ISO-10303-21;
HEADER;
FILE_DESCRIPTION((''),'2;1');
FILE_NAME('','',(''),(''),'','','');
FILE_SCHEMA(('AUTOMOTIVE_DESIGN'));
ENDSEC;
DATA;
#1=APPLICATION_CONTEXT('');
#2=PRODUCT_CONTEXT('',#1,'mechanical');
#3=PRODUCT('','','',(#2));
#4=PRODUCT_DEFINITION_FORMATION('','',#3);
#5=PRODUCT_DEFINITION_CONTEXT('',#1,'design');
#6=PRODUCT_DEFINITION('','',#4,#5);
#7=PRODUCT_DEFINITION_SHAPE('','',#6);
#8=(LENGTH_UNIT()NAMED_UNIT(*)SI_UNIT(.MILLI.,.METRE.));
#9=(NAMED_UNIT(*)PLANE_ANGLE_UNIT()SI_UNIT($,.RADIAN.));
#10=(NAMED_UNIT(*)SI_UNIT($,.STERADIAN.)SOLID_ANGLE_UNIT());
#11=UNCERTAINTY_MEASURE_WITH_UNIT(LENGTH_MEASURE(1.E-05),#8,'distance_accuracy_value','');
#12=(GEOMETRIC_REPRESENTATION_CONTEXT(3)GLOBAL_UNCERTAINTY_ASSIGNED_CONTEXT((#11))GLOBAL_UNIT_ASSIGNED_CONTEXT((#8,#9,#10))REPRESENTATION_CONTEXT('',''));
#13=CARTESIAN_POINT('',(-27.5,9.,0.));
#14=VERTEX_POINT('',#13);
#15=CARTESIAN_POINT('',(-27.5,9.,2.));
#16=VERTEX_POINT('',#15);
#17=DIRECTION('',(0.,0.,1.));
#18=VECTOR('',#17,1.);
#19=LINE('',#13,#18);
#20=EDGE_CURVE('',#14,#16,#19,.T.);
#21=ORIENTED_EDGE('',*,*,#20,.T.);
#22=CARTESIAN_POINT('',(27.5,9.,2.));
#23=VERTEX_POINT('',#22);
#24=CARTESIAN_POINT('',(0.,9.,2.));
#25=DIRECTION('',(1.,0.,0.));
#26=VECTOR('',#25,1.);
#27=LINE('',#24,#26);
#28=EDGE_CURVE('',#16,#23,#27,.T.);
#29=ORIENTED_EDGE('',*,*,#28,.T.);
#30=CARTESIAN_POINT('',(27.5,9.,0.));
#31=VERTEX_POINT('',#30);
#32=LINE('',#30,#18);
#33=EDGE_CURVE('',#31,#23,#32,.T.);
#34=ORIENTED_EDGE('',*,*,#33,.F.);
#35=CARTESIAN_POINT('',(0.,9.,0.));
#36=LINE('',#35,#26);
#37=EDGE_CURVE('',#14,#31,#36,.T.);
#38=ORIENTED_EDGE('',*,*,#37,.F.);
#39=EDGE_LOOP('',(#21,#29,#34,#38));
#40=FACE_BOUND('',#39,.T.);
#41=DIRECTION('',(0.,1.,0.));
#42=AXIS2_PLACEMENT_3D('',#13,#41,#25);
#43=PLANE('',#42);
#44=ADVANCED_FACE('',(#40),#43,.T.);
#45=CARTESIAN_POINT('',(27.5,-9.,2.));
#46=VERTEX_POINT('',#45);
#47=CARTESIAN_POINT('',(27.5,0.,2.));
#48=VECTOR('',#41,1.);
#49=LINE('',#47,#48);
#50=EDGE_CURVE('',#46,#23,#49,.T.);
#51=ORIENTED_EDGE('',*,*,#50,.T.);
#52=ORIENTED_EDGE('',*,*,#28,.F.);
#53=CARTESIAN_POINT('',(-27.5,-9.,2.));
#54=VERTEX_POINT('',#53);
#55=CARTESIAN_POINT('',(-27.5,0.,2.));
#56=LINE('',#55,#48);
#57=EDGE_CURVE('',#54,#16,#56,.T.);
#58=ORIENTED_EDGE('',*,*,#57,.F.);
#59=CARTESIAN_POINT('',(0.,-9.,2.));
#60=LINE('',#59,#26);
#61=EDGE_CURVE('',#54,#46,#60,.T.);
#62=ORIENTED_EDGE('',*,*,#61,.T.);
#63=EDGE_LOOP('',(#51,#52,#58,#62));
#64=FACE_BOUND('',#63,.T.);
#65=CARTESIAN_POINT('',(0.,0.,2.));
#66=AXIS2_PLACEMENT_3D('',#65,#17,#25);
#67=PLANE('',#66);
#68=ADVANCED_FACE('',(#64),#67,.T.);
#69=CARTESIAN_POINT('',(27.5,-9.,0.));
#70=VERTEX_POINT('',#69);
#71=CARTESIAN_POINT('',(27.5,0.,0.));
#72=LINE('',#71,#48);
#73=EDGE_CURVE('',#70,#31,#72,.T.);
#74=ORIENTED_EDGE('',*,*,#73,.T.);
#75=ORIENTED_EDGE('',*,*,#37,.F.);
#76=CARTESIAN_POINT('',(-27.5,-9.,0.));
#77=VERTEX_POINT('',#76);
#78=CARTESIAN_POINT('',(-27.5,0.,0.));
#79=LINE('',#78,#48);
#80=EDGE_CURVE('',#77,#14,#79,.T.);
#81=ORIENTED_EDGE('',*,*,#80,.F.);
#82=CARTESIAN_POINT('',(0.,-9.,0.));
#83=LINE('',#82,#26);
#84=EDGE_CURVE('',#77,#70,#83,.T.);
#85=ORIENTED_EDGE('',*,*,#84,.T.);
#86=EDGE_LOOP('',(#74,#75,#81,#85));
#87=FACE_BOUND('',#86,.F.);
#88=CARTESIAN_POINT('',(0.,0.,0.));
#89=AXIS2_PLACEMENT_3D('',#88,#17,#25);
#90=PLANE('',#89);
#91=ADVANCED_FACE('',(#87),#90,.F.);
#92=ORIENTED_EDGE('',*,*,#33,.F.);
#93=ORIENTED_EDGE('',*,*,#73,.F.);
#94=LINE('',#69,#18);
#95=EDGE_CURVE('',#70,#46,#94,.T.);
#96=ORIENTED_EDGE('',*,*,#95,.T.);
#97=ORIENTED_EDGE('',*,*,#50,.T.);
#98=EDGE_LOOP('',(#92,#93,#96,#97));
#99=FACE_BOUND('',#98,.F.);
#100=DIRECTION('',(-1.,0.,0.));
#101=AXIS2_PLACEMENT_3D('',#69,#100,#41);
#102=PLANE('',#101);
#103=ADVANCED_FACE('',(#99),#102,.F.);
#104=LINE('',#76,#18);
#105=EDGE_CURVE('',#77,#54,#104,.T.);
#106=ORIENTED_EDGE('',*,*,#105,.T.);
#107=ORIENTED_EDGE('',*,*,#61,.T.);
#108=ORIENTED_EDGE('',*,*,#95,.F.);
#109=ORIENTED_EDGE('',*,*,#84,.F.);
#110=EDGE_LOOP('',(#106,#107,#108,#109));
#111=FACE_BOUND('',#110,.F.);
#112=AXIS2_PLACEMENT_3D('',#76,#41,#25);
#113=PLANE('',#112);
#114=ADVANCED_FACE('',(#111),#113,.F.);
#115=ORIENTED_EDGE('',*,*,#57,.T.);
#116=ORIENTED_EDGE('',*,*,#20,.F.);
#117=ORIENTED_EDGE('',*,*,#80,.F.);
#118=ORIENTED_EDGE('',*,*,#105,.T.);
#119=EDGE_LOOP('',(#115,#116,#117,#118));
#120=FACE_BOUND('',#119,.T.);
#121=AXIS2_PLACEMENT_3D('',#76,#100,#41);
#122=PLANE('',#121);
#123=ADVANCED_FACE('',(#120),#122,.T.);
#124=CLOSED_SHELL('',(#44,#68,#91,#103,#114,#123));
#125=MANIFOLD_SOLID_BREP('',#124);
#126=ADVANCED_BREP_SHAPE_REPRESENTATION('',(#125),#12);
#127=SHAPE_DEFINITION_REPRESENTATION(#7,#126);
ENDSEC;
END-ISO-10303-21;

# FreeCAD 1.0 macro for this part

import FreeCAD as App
import Part
import Sketcher
from FreeCAD import Vector
Q = App.Units.Quantity


def add_polygon(sketch, points):
    """Adds a closed chain of lines whose ends are joined by coincident constraints."""
    first, n = sketch.GeometryCount, len(points)
    for a, b in zip(points, points[1:] + points[:1]):
        sketch.addGeometry(Part.LineSegment(App.Vector(*a, 0), App.Vector(*b, 0)), False)
    for i in range(n):
        sketch.addConstraint(Sketcher.Constraint("Coincident", first + i, 2, first + (i + 1) % n, 1))

doc = App.newDocument("Part")
body = doc.addObject("PartDesign::Body", "Body")

# Sketch on XY plane
sketch1 = body.newObject("Sketcher::SketchObject", "Sketch")
sketch1.AttachmentSupport = (doc.getObject("XY_Plane"), [""])
sketch1.MapMode = "FlatFace"
add_polygon(sketch1, [(-27.5, 9), (-27.5, -9), (27.5, -9), (27.5, 9)])  # lines 0-3
sketch1.addConstraint([
    Sketcher.Constraint("Vertical", 0),
    Sketcher.Constraint("Horizontal", 1),
    Sketcher.Constraint("Vertical", 2),
    Sketcher.Constraint("Horizontal", 3),
    Sketcher.Constraint("Symmetric", 0, 2, 2, 2, -1, 1),
    Sketcher.Constraint("DistanceX", 1, 1, 1, 2, Q("55 mm")),
    Sketcher.Constraint("DistanceY", 0, 2, 0, 1, Q("18 mm")),
])
pad1 = body.newObject("PartDesign::Pad", "Pad")
pad1.Profile = sketch1
pad1.Length = 2

# Sketch on XY plane
sketch2 = body.newObject("Sketcher::SketchObject", "Sketch001")
sketch2.AttachmentSupport = (doc.getObject("XY_Plane"), [""])
sketch2.MapMode = "FlatFace"
add_polygon(sketch2, [(-27.5, 9), (-27.5, -9), (27.5, -9), (27.5, 9)])  # lines 0-3
sketch2.addConstraint([
    Sketcher.Constraint("Vertical", 0),
    Sketcher.Constraint("Horizontal", 1),
    Sketcher.Constraint("Vertical", 2),
    Sketcher.Constraint("Horizontal", 3),
    Sketcher.Constraint("Symmetric", 0, 2, 2, 2, -1, 1),
    Sketcher.Constraint("DistanceX", 1, 1, 1, 2, Q("55 mm")),
    Sketcher.Constraint("DistanceY", 0, 2, 0, 1, Q("18 mm")),
])
pad2 = body.newObject("PartDesign::Pad", "Pad001")
pad2.Profile = sketch2
pad2.Length = 2

doc.recompute()
